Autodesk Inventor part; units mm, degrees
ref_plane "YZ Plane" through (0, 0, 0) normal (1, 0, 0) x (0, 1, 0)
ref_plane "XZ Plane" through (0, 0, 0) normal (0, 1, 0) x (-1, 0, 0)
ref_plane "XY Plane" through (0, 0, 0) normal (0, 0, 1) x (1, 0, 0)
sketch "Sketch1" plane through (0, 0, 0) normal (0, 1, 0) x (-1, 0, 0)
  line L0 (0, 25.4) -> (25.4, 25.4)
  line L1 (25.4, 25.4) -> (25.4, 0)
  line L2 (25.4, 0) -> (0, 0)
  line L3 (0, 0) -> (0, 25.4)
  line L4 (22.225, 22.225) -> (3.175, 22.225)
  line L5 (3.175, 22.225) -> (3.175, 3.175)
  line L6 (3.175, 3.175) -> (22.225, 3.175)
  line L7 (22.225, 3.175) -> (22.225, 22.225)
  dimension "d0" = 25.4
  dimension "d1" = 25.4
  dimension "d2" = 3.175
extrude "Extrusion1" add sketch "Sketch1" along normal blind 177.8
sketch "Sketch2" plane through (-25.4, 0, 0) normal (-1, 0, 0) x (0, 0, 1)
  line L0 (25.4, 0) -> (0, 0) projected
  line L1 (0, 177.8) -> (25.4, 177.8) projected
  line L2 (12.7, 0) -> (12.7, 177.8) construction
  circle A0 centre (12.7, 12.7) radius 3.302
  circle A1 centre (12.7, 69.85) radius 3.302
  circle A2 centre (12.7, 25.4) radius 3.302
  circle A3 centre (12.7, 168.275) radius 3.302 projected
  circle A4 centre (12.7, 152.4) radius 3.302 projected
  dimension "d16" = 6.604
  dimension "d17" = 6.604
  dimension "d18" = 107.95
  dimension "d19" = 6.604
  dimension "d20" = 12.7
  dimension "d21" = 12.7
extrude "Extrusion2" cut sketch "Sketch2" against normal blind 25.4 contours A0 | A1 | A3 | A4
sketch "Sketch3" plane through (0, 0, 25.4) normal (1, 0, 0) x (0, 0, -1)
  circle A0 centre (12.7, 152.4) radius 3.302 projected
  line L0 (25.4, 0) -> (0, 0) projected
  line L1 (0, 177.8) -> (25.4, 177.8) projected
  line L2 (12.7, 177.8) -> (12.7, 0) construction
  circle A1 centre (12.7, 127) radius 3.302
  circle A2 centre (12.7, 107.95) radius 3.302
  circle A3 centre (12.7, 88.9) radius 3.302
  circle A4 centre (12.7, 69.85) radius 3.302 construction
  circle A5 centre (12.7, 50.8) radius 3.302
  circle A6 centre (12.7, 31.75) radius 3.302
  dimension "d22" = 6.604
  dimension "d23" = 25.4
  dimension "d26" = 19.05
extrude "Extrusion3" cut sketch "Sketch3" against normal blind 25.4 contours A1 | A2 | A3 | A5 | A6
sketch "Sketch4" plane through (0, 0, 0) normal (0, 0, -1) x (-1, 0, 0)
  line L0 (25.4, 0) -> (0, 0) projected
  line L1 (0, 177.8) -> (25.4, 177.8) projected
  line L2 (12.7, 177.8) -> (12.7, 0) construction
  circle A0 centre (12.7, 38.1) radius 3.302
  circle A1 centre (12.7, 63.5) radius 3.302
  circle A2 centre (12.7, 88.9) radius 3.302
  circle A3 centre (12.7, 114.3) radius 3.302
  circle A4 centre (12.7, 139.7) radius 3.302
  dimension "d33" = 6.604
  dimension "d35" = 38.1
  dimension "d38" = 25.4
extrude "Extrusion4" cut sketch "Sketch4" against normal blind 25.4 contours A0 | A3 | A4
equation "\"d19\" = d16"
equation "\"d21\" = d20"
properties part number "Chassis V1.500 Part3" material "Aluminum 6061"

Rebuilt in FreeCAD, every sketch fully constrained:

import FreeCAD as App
import Part
import Sketcher
Q = App.Units.Quantity

doc = App.newDocument("Part")
body = doc.addObject("PartDesign::Body", "Body")

# Sketch on XZ plane
sketch1 = body.newObject("Sketcher::SketchObject", "Sketch")
sketch1.AttachmentSupport = (doc.getObject("XZ_Plane"), [""])
sketch1.MapMode = "FlatFace"
sketch1.addGeometry(Part.LineSegment(App.Vector(-25, 25, 0), App.Vector(0, 25, 0)), False)
sketch1.addGeometry(Part.LineSegment(App.Vector(0, 25, 0), App.Vector(0, 0, 0)), False)
sketch1.addGeometry(Part.LineSegment(App.Vector(0, 0, 0), App.Vector(-25, 0, 0)), False)
sketch1.addGeometry(Part.LineSegment(App.Vector(-25, 0, 0), App.Vector(-25, 25, 0)), False)
sketch1.addGeometry(Part.LineSegment(App.Vector(-3, 22, 0), App.Vector(-22, 22, 0)), False)
sketch1.addGeometry(Part.LineSegment(App.Vector(-22, 22, 0), App.Vector(-22, 3, 0)), False)
sketch1.addGeometry(Part.LineSegment(App.Vector(-22, 3, 0), App.Vector(-3, 3, 0)), False)
sketch1.addGeometry(Part.LineSegment(App.Vector(-3, 3, 0), App.Vector(-3, 22, 0)), False)
sketch1.addConstraint(Sketcher.Constraint("Coincident", 0, 2, 1, 1))
sketch1.addConstraint(Sketcher.Constraint("Coincident", 1, 2, 2, 1))
sketch1.addConstraint(Sketcher.Constraint("Coincident", 2, 2, 3, 1))
sketch1.addConstraint(Sketcher.Constraint("Coincident", 3, 2, 0, 1))
sketch1.addConstraint(Sketcher.Constraint("Coincident", 4, 2, 5, 1))
sketch1.addConstraint(Sketcher.Constraint("Coincident", 5, 2, 6, 1))
sketch1.addConstraint(Sketcher.Constraint("Coincident", 6, 2, 7, 1))
sketch1.addConstraint(Sketcher.Constraint("Coincident", 7, 2, 4, 1))
sketch1.addConstraint(Sketcher.Constraint("Horizontal", 0))
sketch1.addConstraint(Sketcher.Constraint("Vertical", 1))
sketch1.addConstraint(Sketcher.Constraint("Horizontal", 2))
sketch1.addConstraint(Sketcher.Constraint("Vertical", 3))
sketch1.addConstraint(Sketcher.Constraint("Horizontal", 4))
sketch1.addConstraint(Sketcher.Constraint("Vertical", 5))
sketch1.addConstraint(Sketcher.Constraint("Horizontal", 6))
sketch1.addConstraint(Sketcher.Constraint("Vertical", 7))
sketch1.addConstraint(Sketcher.Constraint("Coincident", 1, 2, -1, 1))
sketch1.addConstraint(Sketcher.Constraint("Equal", 2, 1))
sketch1.addConstraint(Sketcher.Constraint("Equal", 6, 5))
sketch1.addConstraint(Sketcher.Constraint("DistanceX", 0, 1, 0, 2, Q("1 in")))
sketch1.addConstraint(Sketcher.Constraint("DistanceY", -1, 1, 5, 2, Q("0.125 in")))
sketch1.addConstraint(Sketcher.Constraint("DistanceX", 6, 2, -1, 1, Q("0.125 in")))
sketch1.addConstraint(Sketcher.Constraint("DistanceX", 3, 2, 4, 2, Q("0.125 in")))
pad1 = body.newObject("PartDesign::Pad", "Pad")
pad1.Profile = sketch1
pad1.Length = Q("7 in")
pad1.Reversed = True

# Sketch on YZ plane
sketch2 = body.newObject("Sketcher::SketchObject", "Sketch001")
sketch2.AttachmentSupport = (doc.getObject("YZ_Plane"), [""])
sketch2.MapMode = "FlatFace"
sketch2.AttachmentOffset = App.Placement(App.Vector(0, 0, -1 * 25.4), App.Rotation())
sketch2.addGeometry(Part.Circle(App.Vector(12.7, 12.7, 0), App.Vector(0, 0, 1), 3.3), False)
sketch2.addGeometry(Part.Circle(App.Vector(69.8, 12.7, 0), App.Vector(0, 0, 1), 3.3), False)
sketch2.addGeometry(Part.Circle(App.Vector(168.3, 12.7, 0), App.Vector(0, 0, 1), 3.3), False)
sketch2.addGeometry(Part.Circle(App.Vector(152.4, 12.7, 0), App.Vector(0, 0, 1), 3.3), False)
sketch2.addConstraint(Sketcher.Constraint("Equal", 0, 1))
sketch2.addConstraint(Sketcher.Constraint("Equal", 1, 2))
sketch2.addConstraint(Sketcher.Constraint("Equal", 2, 3))
sketch2.addConstraint(Sketcher.Constraint("Horizontal", 0, 3, 1, 3))
sketch2.addConstraint(Sketcher.Constraint("Horizontal", 1, 3, 2, 3))
sketch2.addConstraint(Sketcher.Constraint("Horizontal", 2, 3, 3, 3))
sketch2.addConstraint(Sketcher.Constraint("Diameter", 0, Q("0.26 in")))
sketch2.addConstraint(Sketcher.Constraint("DistanceX", -1, 1, 0, 3, Q("0.5 in")))
sketch2.addConstraint(Sketcher.Constraint("DistanceY", -1, 1, 0, 3, Q("0.5 in")))
sketch2.addConstraint(Sketcher.Constraint("DistanceX", -1, 1, 3, 3, Q("6 in")))
sketch2.addConstraint(Sketcher.Constraint("DistanceX", -1, 1, 1, 3, Q("2.75 in")))
sketch2.addConstraint(Sketcher.Constraint("DistanceX", -1, 1, 2, 3, Q("6.625 in")))
pocket1 = body.newObject("PartDesign::Pocket", "Pocket")
pocket1.Profile = sketch2
pocket1.Length = Q("1 in")
pocket1.Reversed = True

# Sketch on YZ plane
sketch3 = body.newObject("Sketcher::SketchObject", "Sketch002")
sketch3.AttachmentSupport = (doc.getObject("YZ_Plane"), [""])
sketch3.MapMode = "FlatFace"
sketch3.addGeometry(Part.Circle(App.Vector(127, 12.7, 0), App.Vector(0, 0, 1), 3.3), False)
sketch3.addGeometry(Part.Circle(App.Vector(108, 12.7, 0), App.Vector(0, 0, 1), 3.3), False)
sketch3.addGeometry(Part.Circle(App.Vector(88.9, 12.7, 0), App.Vector(0, 0, 1), 3.3), False)
sketch3.addGeometry(Part.Circle(App.Vector(50.8, 12.7, 0), App.Vector(0, 0, 1), 3.3), False)
sketch3.addGeometry(Part.Circle(App.Vector(31.8, 12.7, 0), App.Vector(0, 0, 1), 3.3), False)
sketch3.addConstraint(Sketcher.Constraint("Equal", 0, 1))
sketch3.addConstraint(Sketcher.Constraint("Equal", 1, 2))
sketch3.addConstraint(Sketcher.Constraint("Equal", 2, 3))
sketch3.addConstraint(Sketcher.Constraint("Equal", 3, 4))
sketch3.addConstraint(Sketcher.Constraint("Horizontal", 0, 3, 1, 3))
sketch3.addConstraint(Sketcher.Constraint("Horizontal", 1, 3, 2, 3))
sketch3.addConstraint(Sketcher.Constraint("Horizontal", 2, 3, 3, 3))
sketch3.addConstraint(Sketcher.Constraint("Horizontal", 3, 3, 4, 3))
sketch3.addConstraint(Sketcher.Constraint("Diameter", 0, Q("0.26 in")))
sketch3.addConstraint(Sketcher.Constraint("DistanceX", 1, 3, 0, 3, Q("0.75 in")))
sketch3.addConstraint(Sketcher.Constraint("DistanceX", 2, 3, 1, 3, Q("0.75 in")))
sketch3.addConstraint(Sketcher.Constraint("DistanceX", 4, 3, 3, 3, Q("0.75 in")))
sketch3.addConstraint(Sketcher.Constraint("DistanceX", -1, 1, 0, 3, Q("5 in")))
sketch3.addConstraint(Sketcher.Constraint("DistanceX", -1, 1, 3, 3, Q("2 in")))
sketch3.addConstraint(Sketcher.Constraint("DistanceY", -1, 1, 0, 3, Q("0.5 in")))
pocket2 = body.newObject("PartDesign::Pocket", "Pocket001")
pocket2.Profile = sketch3
pocket2.Length = Q("1 in")

# Sketch on XY plane
sketch4 = body.newObject("Sketcher::SketchObject", "Sketch003")
sketch4.AttachmentSupport = (doc.getObject("XY_Plane"), [""])
sketch4.MapMode = "FlatFace"
sketch4.addGeometry(Part.Circle(App.Vector(-12.7, 38.1, 0), App.Vector(0, 0, 1), 3.3), False)
sketch4.addGeometry(Part.Circle(App.Vector(-12.7, 114.3, 0), App.Vector(0, 0, 1), 3.3), False)
sketch4.addGeometry(Part.Circle(App.Vector(-12.7, 139.7, 0), App.Vector(0, 0, 1), 3.3), False)
sketch4.addConstraint(Sketcher.Constraint("Equal", 0, 1))
sketch4.addConstraint(Sketcher.Constraint("Equal", 1, 2))
sketch4.addConstraint(Sketcher.Constraint("Vertical", 0, 3, 1, 3))
sketch4.addConstraint(Sketcher.Constraint("Vertical", 1, 3, 2, 3))
sketch4.addConstraint(Sketcher.Constraint("Diameter", 0, Q("0.26 in")))
sketch4.addConstraint(Sketcher.Constraint("DistanceY", 1, 3, 2, 3, Q("1 in")))
sketch4.addConstraint(Sketcher.Constraint("DistanceY", -1, 1, 0, 3, Q("1.5 in")))
sketch4.addConstraint(Sketcher.Constraint("DistanceY", 0, 3, 1, 3, Q("3 in")))
sketch4.addConstraint(Sketcher.Constraint("DistanceX", 0, 3, -1, 1, Q("0.5 in")))
pocket3 = body.newObject("PartDesign::Pocket", "Pocket002")
pocket3.Profile = sketch4
pocket3.Length = Q("1 in")
pocket3.Reversed = True

doc.recompute()
